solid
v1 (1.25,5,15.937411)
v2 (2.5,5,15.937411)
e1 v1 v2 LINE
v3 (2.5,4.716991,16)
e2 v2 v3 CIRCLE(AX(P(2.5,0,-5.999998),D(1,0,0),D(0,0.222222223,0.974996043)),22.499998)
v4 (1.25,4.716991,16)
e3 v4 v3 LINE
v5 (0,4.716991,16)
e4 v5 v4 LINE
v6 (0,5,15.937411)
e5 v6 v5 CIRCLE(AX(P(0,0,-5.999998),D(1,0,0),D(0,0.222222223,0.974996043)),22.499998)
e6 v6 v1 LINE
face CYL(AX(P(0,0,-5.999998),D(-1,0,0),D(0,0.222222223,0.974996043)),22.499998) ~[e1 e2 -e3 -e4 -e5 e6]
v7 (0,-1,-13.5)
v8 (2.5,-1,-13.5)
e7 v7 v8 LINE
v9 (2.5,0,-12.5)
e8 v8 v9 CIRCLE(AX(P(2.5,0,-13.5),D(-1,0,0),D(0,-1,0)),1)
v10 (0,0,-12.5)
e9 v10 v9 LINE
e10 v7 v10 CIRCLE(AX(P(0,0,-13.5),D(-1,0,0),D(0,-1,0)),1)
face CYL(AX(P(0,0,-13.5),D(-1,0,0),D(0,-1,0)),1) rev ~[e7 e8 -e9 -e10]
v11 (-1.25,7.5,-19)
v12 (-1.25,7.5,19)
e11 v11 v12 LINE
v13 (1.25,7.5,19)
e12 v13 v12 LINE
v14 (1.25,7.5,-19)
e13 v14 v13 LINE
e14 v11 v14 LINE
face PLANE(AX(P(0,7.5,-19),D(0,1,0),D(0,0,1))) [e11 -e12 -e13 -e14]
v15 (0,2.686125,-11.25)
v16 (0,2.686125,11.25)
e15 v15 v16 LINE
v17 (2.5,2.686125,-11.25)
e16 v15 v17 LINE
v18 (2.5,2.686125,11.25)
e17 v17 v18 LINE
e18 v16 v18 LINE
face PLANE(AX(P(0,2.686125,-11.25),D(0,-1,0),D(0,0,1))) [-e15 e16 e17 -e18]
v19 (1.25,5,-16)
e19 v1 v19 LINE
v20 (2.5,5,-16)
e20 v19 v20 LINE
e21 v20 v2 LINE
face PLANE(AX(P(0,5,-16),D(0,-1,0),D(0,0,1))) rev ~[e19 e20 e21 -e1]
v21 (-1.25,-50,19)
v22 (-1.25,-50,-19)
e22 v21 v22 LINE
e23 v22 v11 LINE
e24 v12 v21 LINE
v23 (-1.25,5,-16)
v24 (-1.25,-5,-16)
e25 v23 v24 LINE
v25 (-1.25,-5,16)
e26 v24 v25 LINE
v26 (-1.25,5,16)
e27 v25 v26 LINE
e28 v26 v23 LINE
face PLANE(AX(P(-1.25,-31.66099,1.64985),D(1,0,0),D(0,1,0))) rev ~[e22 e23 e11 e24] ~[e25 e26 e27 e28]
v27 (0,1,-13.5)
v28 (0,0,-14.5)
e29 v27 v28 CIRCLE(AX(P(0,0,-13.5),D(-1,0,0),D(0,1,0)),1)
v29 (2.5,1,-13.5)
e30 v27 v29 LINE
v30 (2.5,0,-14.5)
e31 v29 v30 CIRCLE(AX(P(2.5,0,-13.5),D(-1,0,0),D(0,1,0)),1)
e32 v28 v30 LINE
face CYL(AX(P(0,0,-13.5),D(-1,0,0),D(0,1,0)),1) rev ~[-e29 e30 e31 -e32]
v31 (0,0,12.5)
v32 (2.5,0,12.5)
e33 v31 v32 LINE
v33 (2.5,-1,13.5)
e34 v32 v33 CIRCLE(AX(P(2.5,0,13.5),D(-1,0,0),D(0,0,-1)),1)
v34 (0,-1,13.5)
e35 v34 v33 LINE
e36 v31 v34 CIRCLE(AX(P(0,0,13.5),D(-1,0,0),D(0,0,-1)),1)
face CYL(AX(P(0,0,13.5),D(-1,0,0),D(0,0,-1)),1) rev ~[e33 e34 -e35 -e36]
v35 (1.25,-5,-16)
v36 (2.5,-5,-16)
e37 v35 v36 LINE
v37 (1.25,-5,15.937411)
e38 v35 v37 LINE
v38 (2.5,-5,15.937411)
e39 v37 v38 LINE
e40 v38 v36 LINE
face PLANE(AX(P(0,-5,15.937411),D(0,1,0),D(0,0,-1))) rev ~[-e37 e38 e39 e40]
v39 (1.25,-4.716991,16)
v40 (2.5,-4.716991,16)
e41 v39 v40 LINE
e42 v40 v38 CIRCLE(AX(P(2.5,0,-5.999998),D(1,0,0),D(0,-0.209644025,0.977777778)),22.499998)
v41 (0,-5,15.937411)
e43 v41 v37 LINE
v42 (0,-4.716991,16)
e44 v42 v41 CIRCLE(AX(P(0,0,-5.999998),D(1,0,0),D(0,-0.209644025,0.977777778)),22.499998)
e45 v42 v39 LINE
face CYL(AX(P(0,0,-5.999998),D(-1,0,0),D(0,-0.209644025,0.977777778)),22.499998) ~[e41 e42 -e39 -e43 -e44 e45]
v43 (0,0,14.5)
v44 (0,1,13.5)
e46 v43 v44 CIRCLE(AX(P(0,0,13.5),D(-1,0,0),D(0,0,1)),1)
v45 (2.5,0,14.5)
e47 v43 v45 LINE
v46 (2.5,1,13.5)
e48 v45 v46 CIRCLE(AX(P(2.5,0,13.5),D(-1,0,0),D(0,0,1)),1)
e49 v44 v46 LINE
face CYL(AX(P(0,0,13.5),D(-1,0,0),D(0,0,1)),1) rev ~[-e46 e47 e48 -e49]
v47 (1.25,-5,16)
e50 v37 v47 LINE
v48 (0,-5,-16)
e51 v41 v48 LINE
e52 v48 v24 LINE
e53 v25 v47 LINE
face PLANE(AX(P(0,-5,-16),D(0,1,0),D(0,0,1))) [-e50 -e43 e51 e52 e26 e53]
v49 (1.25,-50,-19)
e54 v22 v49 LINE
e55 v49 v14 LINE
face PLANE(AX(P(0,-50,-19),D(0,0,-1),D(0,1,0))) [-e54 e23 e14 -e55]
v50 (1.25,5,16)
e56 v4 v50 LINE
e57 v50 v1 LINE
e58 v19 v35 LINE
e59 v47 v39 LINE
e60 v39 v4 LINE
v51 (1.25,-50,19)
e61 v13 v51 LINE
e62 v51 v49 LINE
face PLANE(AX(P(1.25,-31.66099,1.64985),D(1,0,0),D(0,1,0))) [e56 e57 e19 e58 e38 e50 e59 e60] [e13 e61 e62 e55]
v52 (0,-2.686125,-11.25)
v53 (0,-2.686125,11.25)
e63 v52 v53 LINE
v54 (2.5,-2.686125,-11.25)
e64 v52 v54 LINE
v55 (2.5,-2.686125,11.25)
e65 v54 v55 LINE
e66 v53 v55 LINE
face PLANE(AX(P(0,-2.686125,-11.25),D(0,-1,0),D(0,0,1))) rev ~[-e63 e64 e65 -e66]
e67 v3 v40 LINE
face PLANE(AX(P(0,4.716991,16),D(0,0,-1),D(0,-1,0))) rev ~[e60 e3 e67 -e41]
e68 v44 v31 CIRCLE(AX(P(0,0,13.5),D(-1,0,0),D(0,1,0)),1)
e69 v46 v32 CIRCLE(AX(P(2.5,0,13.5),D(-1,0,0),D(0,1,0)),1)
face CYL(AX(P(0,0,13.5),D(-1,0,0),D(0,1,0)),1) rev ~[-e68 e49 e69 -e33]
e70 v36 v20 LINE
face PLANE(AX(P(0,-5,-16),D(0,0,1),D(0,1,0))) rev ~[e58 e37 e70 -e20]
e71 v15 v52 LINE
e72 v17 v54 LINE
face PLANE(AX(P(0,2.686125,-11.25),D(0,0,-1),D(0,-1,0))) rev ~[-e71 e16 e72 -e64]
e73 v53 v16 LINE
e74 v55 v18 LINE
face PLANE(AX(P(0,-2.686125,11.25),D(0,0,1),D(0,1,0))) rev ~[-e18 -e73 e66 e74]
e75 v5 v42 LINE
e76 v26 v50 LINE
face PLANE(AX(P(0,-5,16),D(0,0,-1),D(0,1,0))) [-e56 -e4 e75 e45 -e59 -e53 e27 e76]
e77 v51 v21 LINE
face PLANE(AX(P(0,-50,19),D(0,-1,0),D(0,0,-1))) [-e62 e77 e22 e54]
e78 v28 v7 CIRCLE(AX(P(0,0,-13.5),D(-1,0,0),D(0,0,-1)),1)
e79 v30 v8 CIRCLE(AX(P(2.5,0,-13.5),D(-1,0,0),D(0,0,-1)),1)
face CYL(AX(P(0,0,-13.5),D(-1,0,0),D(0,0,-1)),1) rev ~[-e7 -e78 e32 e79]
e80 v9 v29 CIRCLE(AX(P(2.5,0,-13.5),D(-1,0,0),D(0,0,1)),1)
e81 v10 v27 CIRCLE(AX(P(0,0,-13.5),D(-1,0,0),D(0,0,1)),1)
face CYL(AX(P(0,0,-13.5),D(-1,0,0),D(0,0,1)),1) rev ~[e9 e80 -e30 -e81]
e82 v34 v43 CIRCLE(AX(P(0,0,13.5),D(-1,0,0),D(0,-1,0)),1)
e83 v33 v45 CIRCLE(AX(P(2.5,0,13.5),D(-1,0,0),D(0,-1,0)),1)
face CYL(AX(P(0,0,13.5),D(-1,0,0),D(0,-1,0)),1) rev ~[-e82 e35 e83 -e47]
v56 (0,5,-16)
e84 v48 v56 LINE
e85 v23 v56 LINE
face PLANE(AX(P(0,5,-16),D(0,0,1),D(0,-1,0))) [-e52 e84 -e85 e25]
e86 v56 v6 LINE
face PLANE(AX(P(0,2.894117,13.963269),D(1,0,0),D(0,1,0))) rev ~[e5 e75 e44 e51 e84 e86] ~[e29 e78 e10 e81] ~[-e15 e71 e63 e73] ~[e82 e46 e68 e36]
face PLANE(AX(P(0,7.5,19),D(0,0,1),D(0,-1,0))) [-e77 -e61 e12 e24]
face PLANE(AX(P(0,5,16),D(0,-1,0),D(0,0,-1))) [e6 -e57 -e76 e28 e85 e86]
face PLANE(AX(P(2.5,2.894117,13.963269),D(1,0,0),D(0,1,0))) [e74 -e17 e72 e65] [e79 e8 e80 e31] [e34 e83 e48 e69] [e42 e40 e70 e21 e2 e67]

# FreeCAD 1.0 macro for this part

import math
import FreeCAD as App
import Part
import Sketcher
from FreeCAD import Vector
Q = App.Units.Quantity


def add_polygon(sketch, points):
    """Adds a closed chain of lines whose ends are joined by coincident constraints."""
    first, n = sketch.GeometryCount, len(points)
    for a, b in zip(points, points[1:] + points[:1]):
        sketch.addGeometry(Part.LineSegment(App.Vector(*a, 0), App.Vector(*b, 0)), False)
    for i in range(n):
        sketch.addConstraint(Sketcher.Constraint("Coincident", first + i, 2, first + (i + 1) % n, 1))

doc = App.newDocument("Part")
body = doc.addObject("PartDesign::Body", "Body")

# Sketch on YZ plane
sketch1 = body.newObject("Sketcher::SketchObject", "Sketch")
sketch1.AttachmentSupport = (doc.getObject("YZ_Plane"), [""])
sketch1.MapMode = "FlatFace"
sketch1.addGeometry(Part.ArcOfCircle(Part.Circle(Vector(0, -5.999998, 0), Vector(0, 0, 1), 22.499998), math.radians(77.160412), math.radians(77.898508)), False)  # 0
sketch1.addGeometry(Part.LineSegment(Vector(4.716991, 16, 0), Vector(-4.716991, 16, 0)), False)  # 1
sketch1.addGeometry(Part.ArcOfCircle(Part.Circle(Vector(0, -5.999998, 0), Vector(0, 0, 1), 22.499998), math.radians(102.101492), math.radians(102.839588)), False)  # 2
sketch1.addGeometry(Part.LineSegment(Vector(-5, 15.937411, 0), Vector(-5, -16, 0)), False)  # 3
sketch1.addGeometry(Part.LineSegment(Vector(-5, -16, 0), Vector(5, -16, 0)), False)  # 4
sketch1.addGeometry(Part.LineSegment(Vector(5, -16, 0), Vector(5, 15.937411, 0)), False)  # 5
add_polygon(sketch1, [(2.686125, -11.25), (-2.686125, -11.25), (-2.686125, 11.25), (2.686125, 11.25)])  # lines 6-9
sketch1.addGeometry(Part.ArcOfCircle(Part.Circle(Vector(0, 13.5, 0), Vector(0, 0, 1), 1), math.radians(90), math.radians(180)), False)  # 10
sketch1.addGeometry(Part.ArcOfCircle(Part.Circle(Vector(0, 13.5, 0), Vector(0, 0, 1), 1), math.radians(0), math.radians(90)), False)  # 11
sketch1.addGeometry(Part.ArcOfCircle(Part.Circle(Vector(0, 13.5, 0), Vector(0, 0, 1), 1), math.radians(-90), math.radians(0)), False)  # 12
sketch1.addGeometry(Part.ArcOfCircle(Part.Circle(Vector(0, 13.5, 0), Vector(0, 0, 1), 1), math.radians(180), math.radians(270)), False)  # 13
sketch1.addGeometry(Part.ArcOfCircle(Part.Circle(Vector(0, -13.5, 0), Vector(0, 0, 1), 1), math.radians(90), math.radians(180)), False)  # 14
sketch1.addGeometry(Part.ArcOfCircle(Part.Circle(Vector(0, -13.5, 0), Vector(0, 0, 1), 1), math.radians(0), math.radians(90)), False)  # 15
sketch1.addGeometry(Part.ArcOfCircle(Part.Circle(Vector(0, -13.5, 0), Vector(0, 0, 1), 1), math.radians(-90), math.radians(0)), False)  # 16
sketch1.addGeometry(Part.ArcOfCircle(Part.Circle(Vector(0, -13.5, 0), Vector(0, 0, 1), 1), math.radians(180), math.radians(270)), False)  # 17
sketch1.addConstraint(Sketcher.Constraint("Coincident", 0, 2, 1, 1))
sketch1.addConstraint(Sketcher.Constraint("Coincident", 1, 2, 2, 1))
sketch1.addConstraint(Sketcher.Constraint("Coincident", 2, 2, 3, 1))
sketch1.addConstraint(Sketcher.Constraint("Coincident", 3, 2, 4, 1))
sketch1.addConstraint(Sketcher.Constraint("Coincident", 4, 2, 5, 1))
sketch1.addConstraint(Sketcher.Constraint("Coincident", 5, 2, 0, 1))
sketch1.addConstraint(Sketcher.Constraint("Tangent", 10, 1, 11, 2))
sketch1.addConstraint(Sketcher.Constraint("Tangent", 11, 1, 12, 2))
sketch1.addConstraint(Sketcher.Constraint("Tangent", 12, 1, 13, 2))
sketch1.addConstraint(Sketcher.Constraint("Tangent", 13, 1, 10, 2))
sketch1.addConstraint(Sketcher.Constraint("Tangent", 14, 1, 15, 2))
sketch1.addConstraint(Sketcher.Constraint("Tangent", 15, 1, 16, 2))
sketch1.addConstraint(Sketcher.Constraint("Tangent", 16, 1, 17, 2))
sketch1.addConstraint(Sketcher.Constraint("Tangent", 17, 1, 14, 2))
sketch1.addConstraint(Sketcher.Constraint("Horizontal", 1))
sketch1.addConstraint(Sketcher.Constraint("Vertical", 3))
sketch1.addConstraint(Sketcher.Constraint("Horizontal", 4))
sketch1.addConstraint(Sketcher.Constraint("Vertical", 5))
sketch1.addConstraint(Sketcher.Constraint("Horizontal", 6))
sketch1.addConstraint(Sketcher.Constraint("Vertical", 7))
sketch1.addConstraint(Sketcher.Constraint("Horizontal", 8))
sketch1.addConstraint(Sketcher.Constraint("Vertical", 9))
sketch1.addConstraint(Sketcher.Constraint("Coincident", 2, 3, 0, 3))
sketch1.addConstraint(Sketcher.Constraint("Equal", 0, 2))
sketch1.addConstraint(Sketcher.Constraint("Equal", 10, 11))
sketch1.addConstraint(Sketcher.Constraint("Equal", 13, 14))
sketch1.addConstraint(Sketcher.Constraint("Equal", 14, 15))
sketch1.addConstraint(Sketcher.Constraint("Symmetric", 10, 3, 14, 3, -1, 1))
sketch1.addConstraint(Sketcher.Constraint("Symmetric", 6, 2, 8, 2, -1, 1))
sketch1.addConstraint(Sketcher.Constraint("Symmetric", 2, 2, 5, 2, -2))
sketch1.addConstraint(Sketcher.Constraint("Symmetric", 11, 1, 13, 1, -2))
sketch1.addConstraint(Sketcher.Constraint("PointOnObject", 10, 1, -2))
sketch1.addConstraint(Sketcher.Constraint("PointOnObject", 12, 1, -2))
sketch1.addConstraint(Sketcher.Constraint("PointOnObject", 14, 1, -2))
sketch1.addConstraint(Sketcher.Constraint("PointOnObject", 16, 1, -2))
sketch1.addConstraint(Sketcher.Constraint("Horizontal", 13, 3, 11, 1))
sketch1.addConstraint(Sketcher.Constraint("Horizontal", 17, 3, 15, 1))
sketch1.addConstraint(Sketcher.Constraint("Horizontal", 15, 1, 17, 1))
sketch1.addConstraint(Sketcher.Constraint("Radius", 10, Q("1 mm")))
sketch1.addConstraint(Sketcher.Constraint("Radius", 0, Q("22.499998 mm")))
sketch1.addConstraint(Sketcher.Constraint("DistanceX", 4, 1, 4, 2, Q("10 mm")))
sketch1.addConstraint(Sketcher.Constraint("DistanceY", 7, 1, 7, 2, Q("22.5 mm")))
sketch1.addConstraint(Sketcher.Constraint("DistanceY", 0, 3, -1, 1, Q("5.999998 mm")))
sketch1.addConstraint(Sketcher.Constraint("DistanceY", -1, 1, 0, 2, Q("16 mm")))
sketch1.addConstraint(Sketcher.Constraint("DistanceY", 3, 2, -1, 1, Q("16 mm")))
sketch1.addConstraint(Sketcher.Constraint("DistanceY", 14, 3, 10, 3, Q("27 mm")))
sketch1.addConstraint(Sketcher.Constraint("DistanceX", 6, 2, 6, 1, Q("5.372249 mm")))
pad1 = body.newObject("PartDesign::Pad", "Pad")
pad1.Profile = sketch1
pad1.Length = 2.5

# Sketch on YZ plane
sketch2 = body.newObject("Sketcher::SketchObject", "Sketch001")
sketch2.AttachmentSupport = (doc.getObject("YZ_Plane"), [""])
sketch2.MapMode = "FlatFace"
add_polygon(sketch2, [(-50, 19), (-50, -19), (7.5, -19), (7.5, 19)])  # lines 0-3
add_polygon(sketch2, [(-5, -16), (-5, 16), (5, 16), (5, -16)])  # lines 4-7
sketch2.addConstraint(Sketcher.Constraint("Vertical", 0))
sketch2.addConstraint(Sketcher.Constraint("Horizontal", 1))
sketch2.addConstraint(Sketcher.Constraint("Vertical", 2))
sketch2.addConstraint(Sketcher.Constraint("Horizontal", 3))
sketch2.addConstraint(Sketcher.Constraint("Vertical", 4))
sketch2.addConstraint(Sketcher.Constraint("Horizontal", 5))
sketch2.addConstraint(Sketcher.Constraint("Vertical", 6))
sketch2.addConstraint(Sketcher.Constraint("Horizontal", 7))
sketch2.addConstraint(Sketcher.Constraint("Symmetric", 4, 2, 6, 2, -1, 1))
sketch2.addConstraint(Sketcher.Constraint("DistanceX", 5, 1, 5, 2, Q("10 mm")))
sketch2.addConstraint(Sketcher.Constraint("DistanceY", 0, 2, 0, 1, Q("38 mm")))
sketch2.addConstraint(Sketcher.Constraint("DistanceY", 4, 1, 4, 2, Q("32 mm")))
sketch2.addConstraint(Sketcher.Constraint("DistanceX", 1, 1, 1, 2, Q("57.5 mm")))
sketch2.addConstraint(Sketcher.Constraint("DistanceX", 0, 2, -1, 1, Q("50 mm")))
sketch2.addConstraint(Sketcher.Constraint("DistanceY", 0, 2, -1, 1, Q("19 mm")))
pad2 = body.newObject("PartDesign::Pad", "Pad001")
pad2.Profile = sketch2
pad2.Length = 2.5
pad2.Midplane = True

doc.recompute()
